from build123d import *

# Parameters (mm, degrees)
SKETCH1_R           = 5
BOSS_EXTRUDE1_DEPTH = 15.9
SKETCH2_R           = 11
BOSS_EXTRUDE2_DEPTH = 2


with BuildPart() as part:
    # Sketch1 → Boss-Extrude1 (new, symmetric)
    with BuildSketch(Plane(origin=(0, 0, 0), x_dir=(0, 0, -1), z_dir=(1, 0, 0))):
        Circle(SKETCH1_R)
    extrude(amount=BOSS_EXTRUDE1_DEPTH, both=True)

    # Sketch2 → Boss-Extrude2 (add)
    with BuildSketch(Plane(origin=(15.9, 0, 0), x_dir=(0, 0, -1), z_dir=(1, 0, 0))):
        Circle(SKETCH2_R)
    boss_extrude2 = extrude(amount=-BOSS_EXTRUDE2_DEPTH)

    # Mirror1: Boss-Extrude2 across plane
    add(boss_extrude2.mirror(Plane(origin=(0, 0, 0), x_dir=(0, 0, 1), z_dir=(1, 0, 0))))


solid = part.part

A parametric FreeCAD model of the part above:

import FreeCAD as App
import Part
import Sketcher

doc = App.newDocument("Part")
body = doc.addObject("PartDesign::Body", "Body")

sketch1 = body.newObject("Sketcher::SketchObject", "Sketch")
sketch1.AttachmentSupport = (doc.getObject("YZ_Plane"), [""])
sketch1.MapMode = "FlatFace"
sketch1.addGeometry(Part.Circle(App.Vector(0, 0, 0), App.Vector(0, 0, 1), 5), False)
sketch1.addConstraint(Sketcher.Constraint("Coincident", 0, 3, -1, 1))
sketch1.addConstraint(Sketcher.Constraint("Diameter", 0, 10.0))
pad1 = body.newObject("PartDesign::Pad", "Pad")
pad1.Profile = sketch1
pad1.Length = 31.8
pad1.Midplane = True

sketch2 = body.newObject("Sketcher::SketchObject", "Sketch001")
sketch2.AttachmentSupport = (doc.getObject("YZ_Plane"), [""])
sketch2.MapMode = "FlatFace"
sketch2.AttachmentOffset = App.Placement(App.Vector(0, 0, 15.9), App.Rotation())
sketch2.addGeometry(Part.Circle(App.Vector(0, 0, 0), App.Vector(0, 0, 1), 11), False)
sketch2.addConstraint(Sketcher.Constraint("Coincident", 0, 3, -1, 1))
sketch2.addConstraint(Sketcher.Constraint("Diameter", 0, 22.0))
pad2 = body.newObject("PartDesign::Pad", "Pad001")
pad2.Profile = sketch2
pad2.Length = 2
pad2.Reversed = True
doc.recompute()

mirrored = body.newObject("PartDesign::Mirrored", "Mirrored")
mirrored.Originals = [pad2]
mirrored.MirrorPlane = (doc.getObject("YZ_Plane"), [""])
body.Tip = mirrored

doc.recompute()
